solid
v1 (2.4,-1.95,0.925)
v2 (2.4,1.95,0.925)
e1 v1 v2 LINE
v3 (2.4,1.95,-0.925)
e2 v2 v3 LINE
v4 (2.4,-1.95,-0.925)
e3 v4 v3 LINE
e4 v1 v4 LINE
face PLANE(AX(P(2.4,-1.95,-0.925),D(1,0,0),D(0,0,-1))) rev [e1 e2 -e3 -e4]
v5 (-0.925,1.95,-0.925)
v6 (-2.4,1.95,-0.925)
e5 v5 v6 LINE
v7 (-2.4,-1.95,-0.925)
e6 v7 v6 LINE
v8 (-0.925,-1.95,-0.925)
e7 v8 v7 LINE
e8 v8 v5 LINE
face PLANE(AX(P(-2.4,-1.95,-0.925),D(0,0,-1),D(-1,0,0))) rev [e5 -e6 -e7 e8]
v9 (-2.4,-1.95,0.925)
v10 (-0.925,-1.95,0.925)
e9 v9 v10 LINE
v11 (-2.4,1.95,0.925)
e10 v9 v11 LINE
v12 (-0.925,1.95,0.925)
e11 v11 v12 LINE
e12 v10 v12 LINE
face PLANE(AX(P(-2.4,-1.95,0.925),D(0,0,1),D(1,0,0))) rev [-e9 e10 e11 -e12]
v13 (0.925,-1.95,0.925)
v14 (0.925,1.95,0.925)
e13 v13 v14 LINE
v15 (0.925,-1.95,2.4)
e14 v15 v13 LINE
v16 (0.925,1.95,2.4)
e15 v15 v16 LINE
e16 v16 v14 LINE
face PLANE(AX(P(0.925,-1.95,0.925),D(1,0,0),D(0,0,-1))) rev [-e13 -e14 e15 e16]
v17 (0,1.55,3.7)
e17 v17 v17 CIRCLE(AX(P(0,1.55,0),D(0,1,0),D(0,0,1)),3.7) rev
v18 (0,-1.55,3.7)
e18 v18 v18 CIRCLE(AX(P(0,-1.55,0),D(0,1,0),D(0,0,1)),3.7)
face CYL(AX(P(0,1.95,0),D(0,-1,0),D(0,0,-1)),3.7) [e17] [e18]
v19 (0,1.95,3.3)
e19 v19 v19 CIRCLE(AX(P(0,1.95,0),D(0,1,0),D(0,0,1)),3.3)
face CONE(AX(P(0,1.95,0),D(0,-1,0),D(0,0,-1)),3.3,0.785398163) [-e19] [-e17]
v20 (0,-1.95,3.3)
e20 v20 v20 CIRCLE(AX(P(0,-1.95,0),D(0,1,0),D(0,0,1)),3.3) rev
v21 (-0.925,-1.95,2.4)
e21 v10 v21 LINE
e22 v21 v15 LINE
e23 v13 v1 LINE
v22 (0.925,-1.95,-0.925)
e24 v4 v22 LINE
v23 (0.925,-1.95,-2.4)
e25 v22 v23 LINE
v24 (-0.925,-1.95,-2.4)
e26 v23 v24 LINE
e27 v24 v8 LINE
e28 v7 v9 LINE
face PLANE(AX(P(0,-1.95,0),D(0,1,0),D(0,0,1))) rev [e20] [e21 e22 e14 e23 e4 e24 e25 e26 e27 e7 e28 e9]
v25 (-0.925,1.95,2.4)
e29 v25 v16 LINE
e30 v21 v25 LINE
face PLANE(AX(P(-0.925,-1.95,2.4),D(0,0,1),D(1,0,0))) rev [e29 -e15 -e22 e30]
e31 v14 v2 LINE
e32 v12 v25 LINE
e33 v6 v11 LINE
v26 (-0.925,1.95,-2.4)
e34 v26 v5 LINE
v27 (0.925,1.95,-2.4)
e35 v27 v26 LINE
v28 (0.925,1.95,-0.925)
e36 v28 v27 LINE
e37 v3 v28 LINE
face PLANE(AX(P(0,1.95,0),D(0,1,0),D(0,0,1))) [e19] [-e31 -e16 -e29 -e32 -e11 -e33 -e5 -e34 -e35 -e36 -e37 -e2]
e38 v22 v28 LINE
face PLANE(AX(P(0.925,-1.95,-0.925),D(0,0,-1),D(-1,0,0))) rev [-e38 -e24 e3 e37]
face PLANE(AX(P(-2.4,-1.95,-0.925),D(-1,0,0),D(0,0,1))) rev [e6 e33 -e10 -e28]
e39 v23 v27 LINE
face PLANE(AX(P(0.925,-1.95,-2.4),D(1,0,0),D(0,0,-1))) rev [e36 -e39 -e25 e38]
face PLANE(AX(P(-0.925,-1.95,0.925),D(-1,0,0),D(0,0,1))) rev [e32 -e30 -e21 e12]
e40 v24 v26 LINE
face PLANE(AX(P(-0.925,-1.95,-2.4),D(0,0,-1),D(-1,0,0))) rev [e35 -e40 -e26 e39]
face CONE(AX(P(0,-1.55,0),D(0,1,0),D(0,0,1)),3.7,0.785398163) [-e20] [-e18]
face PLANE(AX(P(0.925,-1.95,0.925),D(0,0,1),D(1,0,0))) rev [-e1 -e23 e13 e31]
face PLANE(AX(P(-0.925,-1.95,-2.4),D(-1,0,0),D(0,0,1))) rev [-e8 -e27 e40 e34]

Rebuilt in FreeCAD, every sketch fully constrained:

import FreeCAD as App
import Part
import Sketcher

V = App.Vector
Q = App.Units.Quantity


def edges_at(feature, points):
    """Names of the edges that pass closest to the given points."""
    edges = feature.Shape.Edges
    near = lambda p: min(range(len(edges)), key=lambda i: edges[i].distToShape(Part.Vertex(*p))[0])
    return sorted({f"Edge{near(p) + 1}" for p in points})


def add_polygon(sketch, points):
    """Adds a closed chain of lines whose ends are joined by coincident constraints."""
    first, n = sketch.GeometryCount, len(points)
    for a, b in zip(points, points[1:] + points[:1]):
        sketch.addGeometry(Part.LineSegment(App.Vector(*a, 0), App.Vector(*b, 0)), False)
    for i in range(n):
        sketch.addConstraint(Sketcher.Constraint("Coincident", first + i, 2, first + (i + 1) % n, 1))

doc = App.newDocument("Part")
body = doc.addObject("PartDesign::Body", "Body")

# Sketch on XZ plane
sketch1 = body.newObject("Sketcher::SketchObject", "Sketch")
sketch1.AttachmentSupport = (doc.getObject("XZ_Plane"), [""])
sketch1.MapMode = "FlatFace"
sketch1.addGeometry(Part.Circle(V(0, 0, 0), V(0, 0, 1), 3.7), False)
sketch1.addConstraint([
    Sketcher.Constraint("Coincident", 0, 3, -1, 1),
    Sketcher.Constraint("Diameter", 0, Q("7.4 mm")),
])
pad1 = body.newObject("PartDesign::Pad", "Pad")
pad1.Profile = sketch1
pad1.Length = 3.9
pad1.Midplane = True

# Sketch on XZ plane
sketch2 = body.newObject("Sketcher::SketchObject", "Sketch001")
sketch2.AttachmentSupport = (doc.getObject("XZ_Plane"), [""])
sketch2.MapMode = "FlatFace"
sketch2.AttachmentOffset = App.Placement(V(0, 0, -1.95), App.Rotation())
add_polygon(sketch2, [(2.4, -0.925), (0.925, -0.925), (0.925, -2.4), (-0.925, -2.4), (-0.925, -0.925), (-2.4, -0.925), (-2.4, 0.925), (-0.925, 0.925), (-0.925, 2.4), (0.925, 2.4), (0.925, 0.925), (2.4, 0.925)])  # lines 0-11
sketch2.addConstraint([
    Sketcher.Constraint("Horizontal", 0),
    Sketcher.Constraint("Vertical", 1),
    Sketcher.Constraint("Horizontal", 2),
    Sketcher.Constraint("Vertical", 3),
    Sketcher.Constraint("Horizontal", 4),
    Sketcher.Constraint("Vertical", 5),
    Sketcher.Constraint("Horizontal", 6),
    Sketcher.Constraint("Vertical", 7),
    Sketcher.Constraint("Horizontal", 8),
    Sketcher.Constraint("Vertical", 9),
    Sketcher.Constraint("Horizontal", 10),
    Sketcher.Constraint("Vertical", 11),
    Sketcher.Constraint("Symmetric", 0, 2, 6, 2, -1, 1),
    Sketcher.Constraint("Symmetric", 2, 2, 8, 2, -1, 1),
    Sketcher.Constraint("Symmetric", 4, 2, 10, 2, -1, 1),
    Sketcher.Constraint("Symmetric", 0, 2, 3, 2, -2),
    Sketcher.Constraint("Equal", 10, 1),
    Sketcher.Constraint("Equal", 8, 5),
    Sketcher.Constraint("DistanceX", 2, 2, 2, 1, Q("1.85 mm")),
    Sketcher.Constraint("DistanceY", 1, 2, -1, 1, Q("2.4 mm")),
])
pocket1 = body.newObject("PartDesign::Pocket", "Pocket")
pocket1.Profile = sketch2
pocket1.Type = "ThroughAll"
pocket1.Reversed = True
doc.recompute()

chamfer = body.newObject("PartDesign::Chamfer", "Chamfer")
chamfer.Base = (pocket1, edges_at(pocket1, [(0, -1.95, -3.7), (0, 1.95, -3.7)]))
chamfer.Size = 0.4

doc.recompute()
